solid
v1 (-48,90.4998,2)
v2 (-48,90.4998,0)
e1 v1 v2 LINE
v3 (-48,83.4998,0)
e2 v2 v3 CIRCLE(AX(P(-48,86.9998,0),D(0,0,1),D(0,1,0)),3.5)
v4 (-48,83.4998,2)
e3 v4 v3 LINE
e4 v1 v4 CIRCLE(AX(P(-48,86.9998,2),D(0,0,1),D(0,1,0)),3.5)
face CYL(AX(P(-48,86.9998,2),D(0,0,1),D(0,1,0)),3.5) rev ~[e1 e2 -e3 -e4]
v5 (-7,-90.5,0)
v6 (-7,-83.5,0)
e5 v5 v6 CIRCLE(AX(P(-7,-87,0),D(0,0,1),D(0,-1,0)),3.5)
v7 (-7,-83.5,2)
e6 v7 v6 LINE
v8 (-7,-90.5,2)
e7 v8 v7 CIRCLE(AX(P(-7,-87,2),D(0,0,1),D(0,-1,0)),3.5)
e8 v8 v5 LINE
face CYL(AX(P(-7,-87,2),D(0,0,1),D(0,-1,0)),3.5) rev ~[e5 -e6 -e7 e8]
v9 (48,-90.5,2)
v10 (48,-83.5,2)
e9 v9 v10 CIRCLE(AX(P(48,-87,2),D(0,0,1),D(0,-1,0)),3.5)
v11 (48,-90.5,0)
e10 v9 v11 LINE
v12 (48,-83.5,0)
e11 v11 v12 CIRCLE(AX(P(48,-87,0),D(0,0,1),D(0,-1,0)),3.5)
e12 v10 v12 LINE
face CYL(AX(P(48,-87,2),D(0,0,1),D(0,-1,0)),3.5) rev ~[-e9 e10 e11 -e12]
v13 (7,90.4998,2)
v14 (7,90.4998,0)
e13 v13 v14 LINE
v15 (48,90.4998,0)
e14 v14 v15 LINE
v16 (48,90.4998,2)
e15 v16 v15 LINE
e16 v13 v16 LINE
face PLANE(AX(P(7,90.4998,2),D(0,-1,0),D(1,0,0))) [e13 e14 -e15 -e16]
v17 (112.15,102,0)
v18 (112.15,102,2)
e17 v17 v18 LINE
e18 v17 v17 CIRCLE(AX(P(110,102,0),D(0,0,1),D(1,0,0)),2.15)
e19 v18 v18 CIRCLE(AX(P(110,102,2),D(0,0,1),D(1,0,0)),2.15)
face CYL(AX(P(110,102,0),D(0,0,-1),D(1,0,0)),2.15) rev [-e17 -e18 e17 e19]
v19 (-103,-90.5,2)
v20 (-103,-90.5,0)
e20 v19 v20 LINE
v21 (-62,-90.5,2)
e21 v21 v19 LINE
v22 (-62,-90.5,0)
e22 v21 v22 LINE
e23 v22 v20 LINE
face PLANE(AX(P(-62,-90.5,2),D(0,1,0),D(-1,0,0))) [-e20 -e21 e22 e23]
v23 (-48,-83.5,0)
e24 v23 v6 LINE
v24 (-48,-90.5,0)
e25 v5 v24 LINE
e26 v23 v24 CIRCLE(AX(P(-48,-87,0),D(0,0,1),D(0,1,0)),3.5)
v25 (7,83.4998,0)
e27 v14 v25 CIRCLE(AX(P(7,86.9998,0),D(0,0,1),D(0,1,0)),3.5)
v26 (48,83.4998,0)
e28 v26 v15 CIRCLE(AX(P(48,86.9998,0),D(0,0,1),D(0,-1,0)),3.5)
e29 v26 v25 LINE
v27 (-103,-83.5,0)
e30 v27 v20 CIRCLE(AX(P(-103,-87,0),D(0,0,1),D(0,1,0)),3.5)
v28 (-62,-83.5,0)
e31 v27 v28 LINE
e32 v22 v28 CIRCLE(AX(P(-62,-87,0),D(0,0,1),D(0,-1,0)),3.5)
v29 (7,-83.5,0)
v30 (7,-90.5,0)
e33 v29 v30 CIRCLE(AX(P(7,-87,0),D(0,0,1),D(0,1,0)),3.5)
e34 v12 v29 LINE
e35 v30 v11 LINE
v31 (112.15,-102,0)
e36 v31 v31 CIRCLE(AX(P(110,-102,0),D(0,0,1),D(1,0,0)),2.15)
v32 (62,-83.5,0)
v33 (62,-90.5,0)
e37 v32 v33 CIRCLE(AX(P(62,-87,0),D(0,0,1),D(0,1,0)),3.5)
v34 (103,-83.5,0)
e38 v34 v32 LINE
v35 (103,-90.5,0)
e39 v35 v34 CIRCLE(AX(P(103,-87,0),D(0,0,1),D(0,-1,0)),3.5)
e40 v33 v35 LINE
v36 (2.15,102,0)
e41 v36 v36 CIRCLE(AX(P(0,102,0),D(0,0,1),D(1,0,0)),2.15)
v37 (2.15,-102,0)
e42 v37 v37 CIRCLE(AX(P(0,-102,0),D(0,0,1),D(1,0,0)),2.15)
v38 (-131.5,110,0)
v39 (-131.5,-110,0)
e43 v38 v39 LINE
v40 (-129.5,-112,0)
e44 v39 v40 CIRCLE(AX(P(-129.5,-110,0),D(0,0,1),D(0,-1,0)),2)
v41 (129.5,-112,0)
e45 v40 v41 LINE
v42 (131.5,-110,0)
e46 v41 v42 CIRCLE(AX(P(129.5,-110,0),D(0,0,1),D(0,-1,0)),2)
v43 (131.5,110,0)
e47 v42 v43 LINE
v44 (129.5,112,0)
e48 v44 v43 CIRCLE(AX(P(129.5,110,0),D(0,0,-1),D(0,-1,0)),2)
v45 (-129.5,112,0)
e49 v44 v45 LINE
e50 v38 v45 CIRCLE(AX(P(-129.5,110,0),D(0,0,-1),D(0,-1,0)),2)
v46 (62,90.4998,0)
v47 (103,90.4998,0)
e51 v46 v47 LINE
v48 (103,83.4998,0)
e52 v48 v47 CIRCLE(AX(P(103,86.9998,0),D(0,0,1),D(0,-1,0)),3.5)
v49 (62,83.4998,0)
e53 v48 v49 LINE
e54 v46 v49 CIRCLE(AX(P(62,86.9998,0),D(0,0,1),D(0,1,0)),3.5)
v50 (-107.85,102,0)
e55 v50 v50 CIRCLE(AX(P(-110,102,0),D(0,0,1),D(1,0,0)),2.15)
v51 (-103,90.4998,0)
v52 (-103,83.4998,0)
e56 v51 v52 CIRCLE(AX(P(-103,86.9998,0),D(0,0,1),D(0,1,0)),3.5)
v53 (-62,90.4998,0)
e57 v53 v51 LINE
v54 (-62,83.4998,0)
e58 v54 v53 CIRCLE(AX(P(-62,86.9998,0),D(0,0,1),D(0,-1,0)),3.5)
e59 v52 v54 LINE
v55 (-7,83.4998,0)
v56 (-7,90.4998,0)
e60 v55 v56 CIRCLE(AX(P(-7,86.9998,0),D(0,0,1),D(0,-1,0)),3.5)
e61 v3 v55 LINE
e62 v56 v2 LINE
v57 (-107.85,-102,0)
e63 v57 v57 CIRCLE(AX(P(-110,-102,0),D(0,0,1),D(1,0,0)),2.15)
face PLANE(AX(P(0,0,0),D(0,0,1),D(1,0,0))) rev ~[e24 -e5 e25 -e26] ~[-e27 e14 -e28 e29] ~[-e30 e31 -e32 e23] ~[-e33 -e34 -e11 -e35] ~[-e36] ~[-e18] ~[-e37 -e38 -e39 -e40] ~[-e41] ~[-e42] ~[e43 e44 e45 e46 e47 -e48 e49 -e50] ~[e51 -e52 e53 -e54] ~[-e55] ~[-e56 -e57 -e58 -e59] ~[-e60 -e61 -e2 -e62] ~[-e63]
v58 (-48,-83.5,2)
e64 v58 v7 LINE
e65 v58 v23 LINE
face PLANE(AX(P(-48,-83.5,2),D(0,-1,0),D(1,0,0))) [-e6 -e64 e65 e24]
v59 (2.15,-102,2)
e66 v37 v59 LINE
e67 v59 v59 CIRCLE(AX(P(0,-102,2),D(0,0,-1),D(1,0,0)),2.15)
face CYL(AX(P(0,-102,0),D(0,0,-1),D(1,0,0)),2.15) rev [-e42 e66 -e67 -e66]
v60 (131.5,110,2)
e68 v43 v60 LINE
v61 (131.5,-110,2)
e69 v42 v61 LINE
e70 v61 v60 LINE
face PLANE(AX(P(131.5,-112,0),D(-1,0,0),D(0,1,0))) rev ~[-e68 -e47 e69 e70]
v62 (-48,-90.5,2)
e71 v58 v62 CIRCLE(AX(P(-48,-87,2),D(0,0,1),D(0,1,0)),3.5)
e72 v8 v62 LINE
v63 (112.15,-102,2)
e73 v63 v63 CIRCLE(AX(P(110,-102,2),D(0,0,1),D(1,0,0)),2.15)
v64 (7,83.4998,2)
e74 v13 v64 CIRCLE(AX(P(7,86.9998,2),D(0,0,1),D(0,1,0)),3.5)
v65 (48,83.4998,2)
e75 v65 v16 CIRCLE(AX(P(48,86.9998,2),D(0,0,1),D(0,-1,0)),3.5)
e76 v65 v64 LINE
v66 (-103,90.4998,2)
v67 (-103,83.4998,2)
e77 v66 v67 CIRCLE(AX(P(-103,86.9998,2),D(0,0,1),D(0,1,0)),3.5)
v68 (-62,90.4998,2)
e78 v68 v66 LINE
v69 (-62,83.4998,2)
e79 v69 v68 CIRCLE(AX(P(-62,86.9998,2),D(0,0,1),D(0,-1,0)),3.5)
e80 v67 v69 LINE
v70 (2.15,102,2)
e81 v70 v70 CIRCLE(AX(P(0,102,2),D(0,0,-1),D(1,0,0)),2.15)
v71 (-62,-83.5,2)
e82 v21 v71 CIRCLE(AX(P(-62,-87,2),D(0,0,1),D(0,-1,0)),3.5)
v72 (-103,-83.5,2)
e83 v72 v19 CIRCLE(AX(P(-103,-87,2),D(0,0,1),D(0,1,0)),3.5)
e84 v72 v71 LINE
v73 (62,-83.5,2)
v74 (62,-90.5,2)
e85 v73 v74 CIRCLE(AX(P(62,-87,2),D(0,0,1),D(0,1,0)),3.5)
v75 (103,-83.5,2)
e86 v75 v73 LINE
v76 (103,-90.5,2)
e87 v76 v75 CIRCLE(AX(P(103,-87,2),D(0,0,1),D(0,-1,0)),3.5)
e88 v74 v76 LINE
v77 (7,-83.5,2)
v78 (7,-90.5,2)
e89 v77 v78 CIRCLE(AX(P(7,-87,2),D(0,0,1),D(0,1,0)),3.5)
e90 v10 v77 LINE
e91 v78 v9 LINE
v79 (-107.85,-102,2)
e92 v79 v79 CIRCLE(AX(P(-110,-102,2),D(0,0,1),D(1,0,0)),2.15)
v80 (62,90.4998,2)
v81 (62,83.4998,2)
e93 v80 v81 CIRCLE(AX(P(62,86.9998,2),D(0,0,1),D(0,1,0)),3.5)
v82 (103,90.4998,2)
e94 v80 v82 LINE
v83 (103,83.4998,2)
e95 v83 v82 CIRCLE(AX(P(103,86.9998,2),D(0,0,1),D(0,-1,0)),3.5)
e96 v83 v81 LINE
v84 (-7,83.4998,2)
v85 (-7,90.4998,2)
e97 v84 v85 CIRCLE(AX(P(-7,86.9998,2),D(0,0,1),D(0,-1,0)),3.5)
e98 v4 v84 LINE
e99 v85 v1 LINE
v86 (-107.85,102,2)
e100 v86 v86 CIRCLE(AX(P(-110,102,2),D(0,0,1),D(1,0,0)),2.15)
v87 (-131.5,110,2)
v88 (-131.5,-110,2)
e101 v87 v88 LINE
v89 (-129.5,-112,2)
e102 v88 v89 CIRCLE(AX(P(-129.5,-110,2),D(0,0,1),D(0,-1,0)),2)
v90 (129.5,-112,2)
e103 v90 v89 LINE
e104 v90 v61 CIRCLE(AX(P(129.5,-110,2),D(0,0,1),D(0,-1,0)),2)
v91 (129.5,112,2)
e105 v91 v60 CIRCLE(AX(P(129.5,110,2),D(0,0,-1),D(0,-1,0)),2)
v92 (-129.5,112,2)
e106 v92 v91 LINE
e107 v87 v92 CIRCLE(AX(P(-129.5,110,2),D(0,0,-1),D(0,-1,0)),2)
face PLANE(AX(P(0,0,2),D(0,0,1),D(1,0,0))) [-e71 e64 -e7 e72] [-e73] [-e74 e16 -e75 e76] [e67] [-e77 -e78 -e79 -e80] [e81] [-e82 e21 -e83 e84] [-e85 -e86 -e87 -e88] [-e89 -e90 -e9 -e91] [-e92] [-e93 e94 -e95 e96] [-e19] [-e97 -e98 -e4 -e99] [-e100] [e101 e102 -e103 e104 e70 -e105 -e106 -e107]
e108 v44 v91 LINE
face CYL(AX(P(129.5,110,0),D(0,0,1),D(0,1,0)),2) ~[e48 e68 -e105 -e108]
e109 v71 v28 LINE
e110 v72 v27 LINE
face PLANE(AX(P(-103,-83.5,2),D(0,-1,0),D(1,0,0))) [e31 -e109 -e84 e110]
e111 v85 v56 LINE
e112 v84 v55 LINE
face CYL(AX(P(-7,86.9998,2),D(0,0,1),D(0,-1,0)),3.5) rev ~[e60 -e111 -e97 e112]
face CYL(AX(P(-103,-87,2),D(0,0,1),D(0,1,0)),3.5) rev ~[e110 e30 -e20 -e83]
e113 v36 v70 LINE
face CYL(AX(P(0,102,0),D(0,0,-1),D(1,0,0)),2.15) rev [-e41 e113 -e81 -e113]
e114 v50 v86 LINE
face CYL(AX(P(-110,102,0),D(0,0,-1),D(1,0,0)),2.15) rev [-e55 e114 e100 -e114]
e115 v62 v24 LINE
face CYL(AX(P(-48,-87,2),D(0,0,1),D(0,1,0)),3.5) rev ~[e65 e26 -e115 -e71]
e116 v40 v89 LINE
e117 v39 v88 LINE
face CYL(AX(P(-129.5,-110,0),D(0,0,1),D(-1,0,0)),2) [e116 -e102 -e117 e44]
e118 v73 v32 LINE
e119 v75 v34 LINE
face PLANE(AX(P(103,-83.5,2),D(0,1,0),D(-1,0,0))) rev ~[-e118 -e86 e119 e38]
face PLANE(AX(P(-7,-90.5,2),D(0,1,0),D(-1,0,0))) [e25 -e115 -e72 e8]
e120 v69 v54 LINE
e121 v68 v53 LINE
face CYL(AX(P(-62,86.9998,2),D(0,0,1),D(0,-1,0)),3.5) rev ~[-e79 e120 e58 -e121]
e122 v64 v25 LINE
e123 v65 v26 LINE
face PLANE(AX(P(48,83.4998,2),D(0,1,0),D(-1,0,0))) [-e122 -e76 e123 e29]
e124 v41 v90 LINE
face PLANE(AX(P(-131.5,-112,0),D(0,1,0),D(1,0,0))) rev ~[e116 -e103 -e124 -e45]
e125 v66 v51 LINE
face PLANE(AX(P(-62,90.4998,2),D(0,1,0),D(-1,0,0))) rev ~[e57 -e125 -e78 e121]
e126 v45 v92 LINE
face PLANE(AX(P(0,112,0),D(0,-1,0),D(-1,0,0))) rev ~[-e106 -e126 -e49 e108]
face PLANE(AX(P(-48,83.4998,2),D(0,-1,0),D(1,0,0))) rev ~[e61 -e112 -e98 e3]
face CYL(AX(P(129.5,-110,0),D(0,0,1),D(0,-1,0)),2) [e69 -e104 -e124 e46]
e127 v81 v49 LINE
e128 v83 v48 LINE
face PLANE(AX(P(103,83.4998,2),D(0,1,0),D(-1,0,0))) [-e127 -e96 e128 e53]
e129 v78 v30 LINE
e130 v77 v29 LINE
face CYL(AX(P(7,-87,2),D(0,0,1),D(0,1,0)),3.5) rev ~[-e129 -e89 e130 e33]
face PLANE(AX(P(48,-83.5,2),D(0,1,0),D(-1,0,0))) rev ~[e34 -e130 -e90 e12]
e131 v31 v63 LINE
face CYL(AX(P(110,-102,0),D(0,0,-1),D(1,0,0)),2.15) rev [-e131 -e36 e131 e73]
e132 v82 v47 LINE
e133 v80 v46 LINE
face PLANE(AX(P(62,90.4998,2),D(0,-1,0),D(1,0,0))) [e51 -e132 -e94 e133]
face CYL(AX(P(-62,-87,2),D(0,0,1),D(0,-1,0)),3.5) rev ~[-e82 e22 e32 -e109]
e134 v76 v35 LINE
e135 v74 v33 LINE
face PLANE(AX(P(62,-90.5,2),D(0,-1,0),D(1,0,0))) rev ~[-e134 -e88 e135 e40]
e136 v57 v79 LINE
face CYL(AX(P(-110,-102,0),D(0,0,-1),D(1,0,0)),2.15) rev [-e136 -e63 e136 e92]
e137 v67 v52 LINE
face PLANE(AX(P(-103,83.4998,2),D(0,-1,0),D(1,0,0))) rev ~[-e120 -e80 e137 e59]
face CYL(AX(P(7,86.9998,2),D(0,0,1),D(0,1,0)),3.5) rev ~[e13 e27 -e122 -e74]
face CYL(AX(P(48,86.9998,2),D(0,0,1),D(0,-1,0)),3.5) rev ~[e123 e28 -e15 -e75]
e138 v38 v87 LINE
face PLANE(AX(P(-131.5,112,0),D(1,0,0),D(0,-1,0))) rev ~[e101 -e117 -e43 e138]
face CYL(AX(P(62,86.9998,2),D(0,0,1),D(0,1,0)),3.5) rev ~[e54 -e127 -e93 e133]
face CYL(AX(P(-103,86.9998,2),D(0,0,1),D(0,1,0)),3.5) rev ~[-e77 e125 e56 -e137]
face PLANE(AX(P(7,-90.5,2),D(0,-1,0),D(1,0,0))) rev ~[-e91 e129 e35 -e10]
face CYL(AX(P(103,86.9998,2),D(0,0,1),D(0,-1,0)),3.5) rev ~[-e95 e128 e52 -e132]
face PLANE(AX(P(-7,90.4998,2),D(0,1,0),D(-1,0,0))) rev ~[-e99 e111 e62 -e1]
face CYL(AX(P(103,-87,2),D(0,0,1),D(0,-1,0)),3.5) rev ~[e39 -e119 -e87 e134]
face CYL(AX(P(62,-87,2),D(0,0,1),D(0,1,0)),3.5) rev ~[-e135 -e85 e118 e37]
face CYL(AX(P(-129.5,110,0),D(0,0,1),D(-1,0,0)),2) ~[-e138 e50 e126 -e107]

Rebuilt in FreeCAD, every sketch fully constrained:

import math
import FreeCAD as App
import Part
import Sketcher

V = App.Vector


def edges_at(feature, points):
    """Names of the edges that pass closest to the given points."""
    edges = feature.Shape.Edges
    near = lambda p: min(range(len(edges)), key=lambda i: edges[i].distToShape(Part.Vertex(*p))[0])
    return sorted({f"Edge{near(p) + 1}" for p in points})


def add_polygon(sketch, points):
    """Adds a closed chain of lines whose ends are joined by coincident constraints."""
    first, n = sketch.GeometryCount, len(points)
    for a, b in zip(points, points[1:] + points[:1]):
        sketch.addGeometry(Part.LineSegment(App.Vector(*a, 0), App.Vector(*b, 0)), False)
    for i in range(n):
        sketch.addConstraint(Sketcher.Constraint("Coincident", first + i, 2, first + (i + 1) % n, 1))

doc = App.newDocument("Part")
params = doc.addObject("Spreadsheet::Sheet", "Params")
for row, (alias, value) in enumerate([
    ("sketch1_diameter", "4.3 mm"),
    ("sketch1_width", "263 mm"),
    ("sketch1_height", "224 mm"),
    ("pad1_length", "2 mm"),
    ("fillet_radius", "2 mm"),
    ("sketch2_radius", "3.5 mm"),
    ("pocket1_length", "10 mm"),
], start=1):
    params.set(f"A{row}", alias)
    params.set(f"B{row}", "=" + value)
    params.setAlias(f"B{row}", alias)

body = doc.addObject("PartDesign::Body", "Body")

# Sketch on XY plane
sketch1 = doc.addObject("Sketcher::SketchObject", "Sketch")
body.addObject(sketch1)
sketch1.AttachmentSupport = (doc.XY_Plane, [""])
sketch1.MapMode = "FlatFace"
add_polygon(sketch1, [(-131.5, 112), (-131.5, -112), (131.5, -112), (131.5, 112)])  # lines 0-3
sketch1.addGeometry(Part.Circle(V(0, 102, 0), V(0, 0, 1), 2.15), False)  # 4
sketch1.addGeometry(Part.Circle(V(0, -102, 0), V(0, 0, 1), 2.15), False)  # 5
sketch1.addGeometry(Part.Circle(V(-110, -102, 0), V(0, 0, 1), 2.15), False)  # 6
sketch1.addGeometry(Part.Circle(V(-110, 102, 0), V(0, 0, 1), 2.15), False)  # 7
sketch1.addGeometry(Part.Circle(V(110, -102, 0), V(0, 0, 1), 2.15), False)  # 8
sketch1.addGeometry(Part.Circle(V(110, 102, 0), V(0, 0, 1), 2.15), False)  # 9
sketch1.addConstraint([
    Sketcher.Constraint("Vertical", 0),
    Sketcher.Constraint("Horizontal", 1),
    Sketcher.Constraint("Vertical", 2),
    Sketcher.Constraint("Horizontal", 3),
    Sketcher.Constraint("Equal", 4, 5),
    Sketcher.Constraint("Equal", 5, 6),
    Sketcher.Constraint("Equal", 6, 7),
    Sketcher.Constraint("Equal", 7, 8),
    Sketcher.Constraint("Equal", 8, 9),
    Sketcher.Constraint("Symmetric", 4, 3, 5, 3, -1, 1),
    Sketcher.Constraint("Symmetric", 7, 3, 8, 3, -1, 1),
    Sketcher.Constraint("Symmetric", 6, 3, 9, 3, -1, 1),
    Sketcher.Constraint("Symmetric", 0, 2, 2, 2, -1, 1),
    Sketcher.Constraint("Symmetric", 6, 3, 8, 3, -2),
    Sketcher.Constraint("PointOnObject", 4, 3, -2),
    Sketcher.Constraint("Horizontal", 5, 3, 6, 3),
    Sketcher.Constraint("Diameter", 4, 4.3),
    Sketcher.Constraint("DistanceX", 1, 1, 1, 2, 263.0),
    Sketcher.Constraint("DistanceY", 0, 2, 0, 1, 224.0),
    Sketcher.Constraint("DistanceX", 6, 3, -1, 1, 110.0),
    Sketcher.Constraint("DistanceY", 0, 2, 6, 3, 10.0),
])
sketch1.setExpression("Constraints[20]", "Params.sketch1_diameter")
sketch1.setExpression("Constraints[21]", "Params.sketch1_width")
sketch1.setExpression("Constraints[22]", "Params.sketch1_height")
pad1 = doc.addObject("PartDesign::Pad", "Pad")
body.addObject(pad1)
pad1.Profile = sketch1
pad1.setExpression("Length", "Params.pad1_length")
doc.recompute()

fillet = doc.addObject("PartDesign::Fillet", "Fillet")
body.addObject(fillet)
fillet.Base = (pad1, edges_at(pad1, [
    (131.5, 112, 1),
    (131.5, -112, 1),
    (-131.5, -112, 1),
    (-131.5, 112, 1),
]))
fillet.setExpression("Radius", "Params.fillet_radius")

# Sketch on XY plane
sketch2 = doc.addObject("Sketcher::SketchObject", "Sketch001")
body.addObject(sketch2)
sketch2.AttachmentSupport = (doc.XY_Plane, [""])
sketch2.MapMode = "FlatFace"
sketch2.AttachmentOffset = App.Placement(V(0, 0, 2), App.Rotation())
sketch2.addGeometry([
    Part.ArcOfCircle(Part.Circle(V(7, -87, 0), V(0, 0, 1), 3.5), math.radians(90), math.radians(270)),  # 0
    Part.LineSegment(V(7, -90.5, 0), V(48, -90.5, 0)),  # 1
    Part.ArcOfCircle(Part.Circle(V(48, -87, 0), V(0, 0, 1), 3.5), math.radians(-90), math.radians(90)),  # 2
    Part.LineSegment(V(48, -83.5, 0), V(7, -83.5, 0)),  # 3
    Part.ArcOfCircle(Part.Circle(V(62, -87, 0), V(0, 0, 1), 3.5), math.radians(90), math.radians(270)),  # 4
    Part.LineSegment(V(62, -90.5, 0), V(103, -90.5, 0)),  # 5
    Part.ArcOfCircle(Part.Circle(V(103, -87, 0), V(0, 0, 1), 3.5), math.radians(-90), math.radians(90)),  # 6
    Part.LineSegment(V(103, -83.5, 0), V(62, -83.5, 0)),  # 7
    Part.LineSegment(V(-48, -90.5, 0), V(-7, -90.5, 0)),  # 8
    Part.ArcOfCircle(Part.Circle(V(-7, -87, 0), V(0, 0, 1), 3.5), math.radians(-90), math.radians(90)),  # 9
    Part.LineSegment(V(-7, -83.5, 0), V(-48, -83.5, 0)),  # 10
    Part.ArcOfCircle(Part.Circle(V(-48, -87, 0), V(0, 0, 1), 3.5), math.radians(90), math.radians(270)),  # 11
    Part.LineSegment(V(-103, -90.5, 0), V(-62, -90.5, 0)),  # 12
    Part.ArcOfCircle(Part.Circle(V(-62, -87, 0), V(0, 0, 1), 3.5), math.radians(-90), math.radians(90)),  # 13
    Part.LineSegment(V(-62, -83.5, 0), V(-103, -83.5, 0)),  # 14
    Part.ArcOfCircle(Part.Circle(V(-103, -87, 0), V(0, 0, 1), 3.5), math.radians(90), math.radians(270)),  # 15
    Part.LineSegment(V(48, 90.4998, 0), V(7, 90.4998, 0)),  # 16
    Part.ArcOfCircle(Part.Circle(V(7, 86.9998, 0), V(0, 0, 1), 3.5), math.radians(90), math.radians(270)),  # 17
    Part.LineSegment(V(7, 83.4998, 0), V(48, 83.4998, 0)),  # 18
    Part.ArcOfCircle(Part.Circle(V(48, 86.9998, 0), V(0, 0, 1), 3.5), math.radians(-90), math.radians(90)),  # 19
    Part.LineSegment(V(103, 90.4998, 0), V(62, 90.4998, 0)),  # 20
    Part.ArcOfCircle(Part.Circle(V(62, 86.9998, 0), V(0, 0, 1), 3.5), math.radians(90), math.radians(270)),  # 21
    Part.LineSegment(V(62, 83.4998, 0), V(103, 83.4998, 0)),  # 22
    Part.ArcOfCircle(Part.Circle(V(103, 86.9998, 0), V(0, 0, 1), 3.5), math.radians(-90), math.radians(90)),  # 23
    Part.ArcOfCircle(Part.Circle(V(-7, 86.9998, 0), V(0, 0, 1), 3.5), math.radians(-90), math.radians(90)),  # 24
    Part.LineSegment(V(-7, 90.4998, 0), V(-48, 90.4998, 0)),  # 25
    Part.ArcOfCircle(Part.Circle(V(-48, 86.9998, 0), V(0, 0, 1), 3.5), math.radians(90), math.radians(270)),  # 26
    Part.LineSegment(V(-48, 83.4998, 0), V(-7, 83.4998, 0)),  # 27
    Part.ArcOfCircle(Part.Circle(V(-62, 86.9998, 0), V(0, 0, 1), 3.5), math.radians(-90), math.radians(90)),  # 28
    Part.LineSegment(V(-62, 90.4998, 0), V(-103, 90.4998, 0)),  # 29
    Part.ArcOfCircle(Part.Circle(V(-103, 86.9998, 0), V(0, 0, 1), 3.5), math.radians(90), math.radians(270)),  # 30
    Part.LineSegment(V(-103, 83.4998, 0), V(-62, 83.4998, 0)),  # 31
], False)
sketch2.addConstraint([
    Sketcher.Constraint("Tangent", 0, 2, 1, 1),
    Sketcher.Constraint("Tangent", 1, 2, 2, 1),
    Sketcher.Constraint("Tangent", 2, 2, 3, 1),
    Sketcher.Constraint("Tangent", 3, 2, 0, 1),
    Sketcher.Constraint("Tangent", 4, 2, 5, 1),
    Sketcher.Constraint("Tangent", 5, 2, 6, 1),
    Sketcher.Constraint("Tangent", 6, 2, 7, 1),
    Sketcher.Constraint("Tangent", 7, 2, 4, 1),
    Sketcher.Constraint("Tangent", 8, 2, 9, 1),
    Sketcher.Constraint("Tangent", 9, 2, 10, 1),
    Sketcher.Constraint("Tangent", 10, 2, 11, 1),
    Sketcher.Constraint("Tangent", 11, 2, 8, 1),
    Sketcher.Constraint("Tangent", 12, 2, 13, 1),
    Sketcher.Constraint("Tangent", 13, 2, 14, 1),
    Sketcher.Constraint("Tangent", 14, 2, 15, 1),
    Sketcher.Constraint("Tangent", 15, 2, 12, 1),
    Sketcher.Constraint("Tangent", 16, 2, 17, 1),
    Sketcher.Constraint("Tangent", 17, 2, 18, 1),
    Sketcher.Constraint("Tangent", 18, 2, 19, 1),
    Sketcher.Constraint("Tangent", 19, 2, 16, 1),
    Sketcher.Constraint("Tangent", 20, 2, 21, 1),
    Sketcher.Constraint("Tangent", 21, 2, 22, 1),
    Sketcher.Constraint("Tangent", 22, 2, 23, 1),
    Sketcher.Constraint("Tangent", 23, 2, 20, 1),
    Sketcher.Constraint("Tangent", 24, 2, 25, 1),
    Sketcher.Constraint("Tangent", 25, 2, 26, 1),
    Sketcher.Constraint("Tangent", 26, 2, 27, 1),
    Sketcher.Constraint("Tangent", 27, 2, 24, 1),
    Sketcher.Constraint("Tangent", 28, 2, 29, 1),
    Sketcher.Constraint("Tangent", 29, 2, 30, 1),
    Sketcher.Constraint("Tangent", 30, 2, 31, 1),
    Sketcher.Constraint("Tangent", 31, 2, 28, 1),
    Sketcher.Constraint("Horizontal", 1),
    Sketcher.Constraint("Horizontal", 3),
    Sketcher.Constraint("Horizontal", 5),
    Sketcher.Constraint("Horizontal", 7),
    Sketcher.Constraint("Horizontal", 8),
    Sketcher.Constraint("Horizontal", 10),
    Sketcher.Constraint("Horizontal", 12),
    Sketcher.Constraint("Horizontal", 14),
    Sketcher.Constraint("Horizontal", 16),
    Sketcher.Constraint("Horizontal", 18),
    Sketcher.Constraint("Horizontal", 20),
    Sketcher.Constraint("Horizontal", 22),
    Sketcher.Constraint("Horizontal", 25),
    Sketcher.Constraint("Horizontal", 27),
    Sketcher.Constraint("Horizontal", 29),
    Sketcher.Constraint("Horizontal", 31),
    Sketcher.Constraint("Equal", 2, 4),
    Sketcher.Constraint("Equal", 6, 9),
    Sketcher.Constraint("Equal", 11, 13),
    Sketcher.Constraint("Equal", 15, 17),
    Sketcher.Constraint("Equal", 19, 21),
    Sketcher.Constraint("Equal", 23, 24),
    Sketcher.Constraint("Equal", 26, 28),
    Sketcher.Constraint("Symmetric", 9, 3, 17, 3, -1, 1),
    Sketcher.Constraint("Symmetric", 13, 3, 21, 3, -1, 1),
    Sketcher.Constraint("Symmetric", 0, 3, 24, 3, -1, 1),
    Sketcher.Constraint("Symmetric", 4, 3, 28, 3, -1, 1),
    Sketcher.Constraint("Symmetric", 0, 3, 9, 3, -2),
    Sketcher.Constraint("Symmetric", 4, 3, 13, 3, -2),
    Sketcher.Constraint("Horizontal", 2, 3, 4, 3),
    Sketcher.Constraint("Vertical", 2, 3, 19, 3),
    Sketcher.Constraint("Vertical", 6, 3, 23, 3),
    Sketcher.Constraint("Vertical", 11, 3, 26, 3),
    Sketcher.Constraint("Vertical", 15, 3, 30, 3),
    Sketcher.Constraint("Equal", 3, 5),
    Sketcher.Constraint("Equal", 7, 8),
    Sketcher.Constraint("Equal", 10, 12),
    Sketcher.Constraint("Radius", 0, 3.5),
    Sketcher.Constraint("DistanceX", -1, 1, 0, 3, 7.0),
    Sketcher.Constraint("DistanceX", -1, 1, 2, 3, 48.0),
    Sketcher.Constraint("DistanceX", 9, 3, 6, 3, 110.0),
    Sketcher.Constraint("DistanceY", 0, 3, -1, 1, 87.0),
])
sketch2.setExpression("Constraints[69]", "Params.sketch2_radius")
pocket1 = doc.addObject("PartDesign::Pocket", "Pocket")
body.addObject(pocket1)
pocket1.Profile = sketch2
pocket1.setExpression("Length", "Params.pocket1_length")

doc.recompute()
